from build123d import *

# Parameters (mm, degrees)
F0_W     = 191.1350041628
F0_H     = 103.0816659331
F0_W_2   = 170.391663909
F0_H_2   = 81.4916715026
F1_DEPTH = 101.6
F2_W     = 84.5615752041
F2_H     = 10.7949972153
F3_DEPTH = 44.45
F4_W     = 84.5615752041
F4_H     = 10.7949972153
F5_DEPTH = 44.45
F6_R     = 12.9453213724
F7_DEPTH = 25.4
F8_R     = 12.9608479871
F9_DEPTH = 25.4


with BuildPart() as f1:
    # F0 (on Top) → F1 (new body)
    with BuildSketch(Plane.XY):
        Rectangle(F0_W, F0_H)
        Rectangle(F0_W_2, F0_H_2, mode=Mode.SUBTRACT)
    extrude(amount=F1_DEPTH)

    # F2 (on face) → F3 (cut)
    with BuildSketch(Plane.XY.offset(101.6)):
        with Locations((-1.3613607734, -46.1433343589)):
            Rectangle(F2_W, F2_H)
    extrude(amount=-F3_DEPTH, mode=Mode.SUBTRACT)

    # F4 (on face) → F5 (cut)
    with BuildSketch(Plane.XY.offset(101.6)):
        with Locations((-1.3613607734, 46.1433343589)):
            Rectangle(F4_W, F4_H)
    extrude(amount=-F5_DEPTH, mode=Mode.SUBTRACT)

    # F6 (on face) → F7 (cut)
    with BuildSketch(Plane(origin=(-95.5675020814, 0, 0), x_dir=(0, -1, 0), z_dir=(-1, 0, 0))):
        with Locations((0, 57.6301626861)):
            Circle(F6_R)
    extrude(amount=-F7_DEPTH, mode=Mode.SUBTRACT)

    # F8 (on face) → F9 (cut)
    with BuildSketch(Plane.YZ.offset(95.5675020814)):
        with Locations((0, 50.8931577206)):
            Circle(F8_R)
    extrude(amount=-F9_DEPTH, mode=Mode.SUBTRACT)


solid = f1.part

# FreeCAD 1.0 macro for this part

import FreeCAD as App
import Part
import Sketcher

V = App.Vector
Q = App.Units.Quantity


def add_polygon(sketch, points):
    """Adds a closed chain of lines whose ends are joined by coincident constraints."""
    first, n = sketch.GeometryCount, len(points)
    for a, b in zip(points, points[1:] + points[:1]):
        sketch.addGeometry(Part.LineSegment(App.Vector(*a, 0), App.Vector(*b, 0)), False)
    for i in range(n):
        sketch.addConstraint(Sketcher.Constraint("Coincident", first + i, 2, first + (i + 1) % n, 1))

doc = App.newDocument("Part")
body = doc.addObject("PartDesign::Body", "Body")

# Sketch on XY plane
sketch1 = body.newObject("Sketcher::SketchObject", "Sketch")
sketch1.AttachmentSupport = (doc.getObject("XY_Plane"), [""])
sketch1.MapMode = "FlatFace"
add_polygon(sketch1, [(-96, 52), (-96, -52), (96, -52), (96, 52)])  # lines 0-3
add_polygon(sketch1, [(85, -41), (-85, -41), (-85, 41), (85, 41)])  # lines 4-7
sketch1.addConstraint(Sketcher.Constraint("Vertical", 0))
sketch1.addConstraint(Sketcher.Constraint("Horizontal", 1))
sketch1.addConstraint(Sketcher.Constraint("Vertical", 2))
sketch1.addConstraint(Sketcher.Constraint("Horizontal", 3))
sketch1.addConstraint(Sketcher.Constraint("Horizontal", 4))
sketch1.addConstraint(Sketcher.Constraint("Vertical", 5))
sketch1.addConstraint(Sketcher.Constraint("Horizontal", 6))
sketch1.addConstraint(Sketcher.Constraint("Vertical", 7))
sketch1.addConstraint(Sketcher.Constraint("Symmetric", 0, 2, 2, 2, -1, 1))
sketch1.addConstraint(Sketcher.Constraint("Symmetric", 4, 2, 6, 2, -1, 1))
sketch1.addConstraint(Sketcher.Constraint("DistanceX", 1, 1, 1, 2, Q("7.5250002 in")))
sketch1.addConstraint(Sketcher.Constraint("DistanceY", 0, 2, 4, 2, Q("0.4249999 in")))
sketch1.addConstraint(Sketcher.Constraint("DistanceY", 5, 1, 5, 2, 81.491672))
sketch1.addConstraint(Sketcher.Constraint("DistanceX", 4, 2, 4, 1, 170.391664))
pad1 = body.newObject("PartDesign::Pad", "Pad")
pad1.Profile = sketch1
pad1.Length = Q("4 in")

# Sketch on XY plane
sketch2 = body.newObject("Sketcher::SketchObject", "Sketch001")
sketch2.AttachmentSupport = (doc.getObject("XY_Plane"), [""])
sketch2.MapMode = "FlatFace"
sketch2.AttachmentOffset = App.Placement(V(0, 0, 4 * 25.4), App.Rotation())
add_polygon(sketch2, [(-44, -41), (-44, -52), (41, -52), (41, -41)])  # lines 0-3
sketch2.addConstraint(Sketcher.Constraint("Vertical", 0))
sketch2.addConstraint(Sketcher.Constraint("Horizontal", 1))
sketch2.addConstraint(Sketcher.Constraint("Vertical", 2))
sketch2.addConstraint(Sketcher.Constraint("Horizontal", 3))
sketch2.addConstraint(Sketcher.Constraint("DistanceY", 0, 2, 0, 1, Q("0.4249999 in")))
sketch2.addConstraint(Sketcher.Constraint("DistanceX", 1, 1, 1, 2, 84.561575))
sketch2.addConstraint(Sketcher.Constraint("DistanceX", 0, 2, -1, 1, 43.642148))
sketch2.addConstraint(Sketcher.Constraint("DistanceY", 0, 2, -1, 1, 51.540833))
pocket1 = body.newObject("PartDesign::Pocket", "Pocket")
pocket1.Profile = sketch2
pocket1.Length = Q("1.75 in")

# Sketch on XY plane
sketch3 = body.newObject("Sketcher::SketchObject", "Sketch002")
sketch3.AttachmentSupport = (doc.getObject("XY_Plane"), [""])
sketch3.MapMode = "FlatFace"
sketch3.AttachmentOffset = App.Placement(V(0, 0, 4 * 25.4), App.Rotation())
add_polygon(sketch3, [(-44, 52), (-44, 41), (41, 41), (41, 52)])  # lines 0-3
sketch3.addConstraint(Sketcher.Constraint("Vertical", 0))
sketch3.addConstraint(Sketcher.Constraint("Horizontal", 1))
sketch3.addConstraint(Sketcher.Constraint("Vertical", 2))
sketch3.addConstraint(Sketcher.Constraint("Horizontal", 3))
sketch3.addConstraint(Sketcher.Constraint("DistanceY", 0, 2, 0, 1, Q("0.4249999 in")))
sketch3.addConstraint(Sketcher.Constraint("DistanceX", 1, 1, 1, 2, 84.561575))
sketch3.addConstraint(Sketcher.Constraint("DistanceX", 0, 2, -1, 1, 43.642148))
sketch3.addConstraint(Sketcher.Constraint("DistanceY", -1, 1, 0, 2, 40.745836))
pocket2 = body.newObject("PartDesign::Pocket", "Pocket001")
pocket2.Profile = sketch3
pocket2.Length = Q("1.75 in")

# Sketch on YZ plane
sketch4 = body.newObject("Sketcher::SketchObject", "Sketch003")
sketch4.AttachmentSupport = (doc.getObject("YZ_Plane"), [""])
sketch4.MapMode = "FlatFace"
sketch4.AttachmentOffset = App.Placement(V(0, 0, -3.7625001 * 25.4), App.Rotation())
sketch4.addGeometry(Part.Circle(V(0, 58, 0), V(0, 0, 1), 13), False)
sketch4.addConstraint(Sketcher.Constraint("PointOnObject", 0, 3, -2))
sketch4.addConstraint(Sketcher.Constraint("Diameter", 0, 25.890643))
sketch4.addConstraint(Sketcher.Constraint("DistanceY", -1, 1, 0, 3, 57.630163))
pocket3 = body.newObject("PartDesign::Pocket", "Pocket002")
pocket3.Profile = sketch4
pocket3.Length = Q("1 in")
pocket3.Reversed = True

# Sketch on YZ plane
sketch5 = body.newObject("Sketcher::SketchObject", "Sketch004")
sketch5.AttachmentSupport = (doc.getObject("YZ_Plane"), [""])
sketch5.MapMode = "FlatFace"
sketch5.AttachmentOffset = App.Placement(V(0, 0, 3.7625001 * 25.4), App.Rotation())
sketch5.addGeometry(Part.Circle(V(0, 51, 0), V(0, 0, 1), 13), False)
sketch5.addConstraint(Sketcher.Constraint("PointOnObject", 0, 3, -2))
sketch5.addConstraint(Sketcher.Constraint("Diameter", 0, 25.921696))
sketch5.addConstraint(Sketcher.Constraint("DistanceY", -1, 1, 0, 3, 50.893158))
pocket4 = body.newObject("PartDesign::Pocket", "Pocket003")
pocket4.Profile = sketch5
pocket4.Length = Q("1 in")

doc.recompute()
